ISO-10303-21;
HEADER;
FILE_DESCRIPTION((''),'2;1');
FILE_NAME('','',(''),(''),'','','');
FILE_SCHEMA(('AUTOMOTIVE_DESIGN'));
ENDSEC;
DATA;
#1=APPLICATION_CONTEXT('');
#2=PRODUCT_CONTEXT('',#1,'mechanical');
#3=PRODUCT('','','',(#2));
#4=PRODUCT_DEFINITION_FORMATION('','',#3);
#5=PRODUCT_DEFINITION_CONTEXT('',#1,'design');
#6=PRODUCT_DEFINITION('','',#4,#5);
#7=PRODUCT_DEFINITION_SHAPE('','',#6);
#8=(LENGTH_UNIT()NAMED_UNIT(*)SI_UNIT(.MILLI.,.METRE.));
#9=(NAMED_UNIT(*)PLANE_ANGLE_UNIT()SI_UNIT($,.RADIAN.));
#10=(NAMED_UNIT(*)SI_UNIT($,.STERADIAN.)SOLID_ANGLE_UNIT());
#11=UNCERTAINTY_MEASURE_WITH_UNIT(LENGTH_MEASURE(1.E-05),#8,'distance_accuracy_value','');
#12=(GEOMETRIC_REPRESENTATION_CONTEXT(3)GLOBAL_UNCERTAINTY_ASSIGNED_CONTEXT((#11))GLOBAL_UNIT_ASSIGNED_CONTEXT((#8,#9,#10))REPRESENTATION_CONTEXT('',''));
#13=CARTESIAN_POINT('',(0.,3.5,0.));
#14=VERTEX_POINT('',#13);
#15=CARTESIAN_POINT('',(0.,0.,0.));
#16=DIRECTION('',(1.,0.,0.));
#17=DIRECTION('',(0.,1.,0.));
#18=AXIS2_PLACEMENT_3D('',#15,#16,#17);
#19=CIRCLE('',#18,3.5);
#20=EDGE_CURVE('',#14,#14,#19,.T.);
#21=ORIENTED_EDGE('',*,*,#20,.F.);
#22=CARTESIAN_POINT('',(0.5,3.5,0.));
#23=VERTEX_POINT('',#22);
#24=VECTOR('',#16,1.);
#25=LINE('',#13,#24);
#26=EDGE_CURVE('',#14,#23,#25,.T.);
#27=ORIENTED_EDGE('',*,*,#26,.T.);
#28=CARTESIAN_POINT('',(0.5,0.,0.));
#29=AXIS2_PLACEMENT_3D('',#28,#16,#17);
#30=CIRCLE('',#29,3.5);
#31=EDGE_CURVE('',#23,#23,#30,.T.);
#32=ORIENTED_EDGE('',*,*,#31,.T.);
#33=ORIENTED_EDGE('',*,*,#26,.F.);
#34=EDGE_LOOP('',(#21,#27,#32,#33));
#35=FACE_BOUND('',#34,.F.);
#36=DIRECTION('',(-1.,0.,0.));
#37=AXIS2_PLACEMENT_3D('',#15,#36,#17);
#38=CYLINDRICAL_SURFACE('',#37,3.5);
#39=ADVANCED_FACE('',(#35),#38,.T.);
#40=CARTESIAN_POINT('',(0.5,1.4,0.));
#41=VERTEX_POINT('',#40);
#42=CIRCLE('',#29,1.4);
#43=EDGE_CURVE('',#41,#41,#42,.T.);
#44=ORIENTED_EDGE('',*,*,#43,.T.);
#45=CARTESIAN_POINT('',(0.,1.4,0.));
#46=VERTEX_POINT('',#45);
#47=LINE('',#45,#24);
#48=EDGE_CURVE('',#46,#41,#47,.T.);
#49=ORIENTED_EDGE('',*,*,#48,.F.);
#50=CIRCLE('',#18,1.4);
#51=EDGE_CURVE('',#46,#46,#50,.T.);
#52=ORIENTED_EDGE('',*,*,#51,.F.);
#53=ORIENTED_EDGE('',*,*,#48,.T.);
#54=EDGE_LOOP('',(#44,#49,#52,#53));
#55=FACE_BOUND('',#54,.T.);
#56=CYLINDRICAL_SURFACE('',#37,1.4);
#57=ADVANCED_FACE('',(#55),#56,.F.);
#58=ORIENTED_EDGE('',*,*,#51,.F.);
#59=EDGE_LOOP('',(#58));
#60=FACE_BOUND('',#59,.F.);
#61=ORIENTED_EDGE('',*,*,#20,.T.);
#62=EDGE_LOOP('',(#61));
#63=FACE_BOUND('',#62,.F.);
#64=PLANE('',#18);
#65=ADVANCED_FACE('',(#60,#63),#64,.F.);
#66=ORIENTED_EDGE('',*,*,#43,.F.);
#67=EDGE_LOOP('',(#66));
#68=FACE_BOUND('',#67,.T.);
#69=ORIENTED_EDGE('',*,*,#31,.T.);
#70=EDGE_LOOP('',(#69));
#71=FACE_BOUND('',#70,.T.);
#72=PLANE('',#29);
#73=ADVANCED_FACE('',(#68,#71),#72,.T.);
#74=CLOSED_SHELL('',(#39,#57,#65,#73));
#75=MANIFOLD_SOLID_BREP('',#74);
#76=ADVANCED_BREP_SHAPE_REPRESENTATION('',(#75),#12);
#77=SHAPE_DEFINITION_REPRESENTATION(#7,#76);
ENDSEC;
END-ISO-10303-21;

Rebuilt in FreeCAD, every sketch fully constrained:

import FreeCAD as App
import Part
import Sketcher
from FreeCAD import Vector

doc = App.newDocument("Part")
body = doc.addObject("PartDesign::Body", "Body")

# Sketch on YZ plane
sketch1 = body.newObject("Sketcher::SketchObject", "Sketch")
sketch1.AttachmentSupport = (doc.getObject("YZ_Plane"), [""])
sketch1.MapMode = "FlatFace"
sketch1.addGeometry([
    Part.Circle(Vector(0, 0, 0), Vector(0, 0, 1), 3.5),
    Part.Circle(Vector(0, 0, 0), Vector(0, 0, 1), 1.4),
], False)
sketch1.addConstraint([
    Sketcher.Constraint("Coincident", 0, 3, -1, 1),
    Sketcher.Constraint("Coincident", 1, 3, -1, 1),
    Sketcher.Constraint("Diameter", 0, 7.0),
    Sketcher.Constraint("Diameter", 1, 2.8),
])
pad1 = body.newObject("PartDesign::Pad", "Pad")
pad1.Profile = sketch1
pad1.Length = 0.5

doc.recompute()
